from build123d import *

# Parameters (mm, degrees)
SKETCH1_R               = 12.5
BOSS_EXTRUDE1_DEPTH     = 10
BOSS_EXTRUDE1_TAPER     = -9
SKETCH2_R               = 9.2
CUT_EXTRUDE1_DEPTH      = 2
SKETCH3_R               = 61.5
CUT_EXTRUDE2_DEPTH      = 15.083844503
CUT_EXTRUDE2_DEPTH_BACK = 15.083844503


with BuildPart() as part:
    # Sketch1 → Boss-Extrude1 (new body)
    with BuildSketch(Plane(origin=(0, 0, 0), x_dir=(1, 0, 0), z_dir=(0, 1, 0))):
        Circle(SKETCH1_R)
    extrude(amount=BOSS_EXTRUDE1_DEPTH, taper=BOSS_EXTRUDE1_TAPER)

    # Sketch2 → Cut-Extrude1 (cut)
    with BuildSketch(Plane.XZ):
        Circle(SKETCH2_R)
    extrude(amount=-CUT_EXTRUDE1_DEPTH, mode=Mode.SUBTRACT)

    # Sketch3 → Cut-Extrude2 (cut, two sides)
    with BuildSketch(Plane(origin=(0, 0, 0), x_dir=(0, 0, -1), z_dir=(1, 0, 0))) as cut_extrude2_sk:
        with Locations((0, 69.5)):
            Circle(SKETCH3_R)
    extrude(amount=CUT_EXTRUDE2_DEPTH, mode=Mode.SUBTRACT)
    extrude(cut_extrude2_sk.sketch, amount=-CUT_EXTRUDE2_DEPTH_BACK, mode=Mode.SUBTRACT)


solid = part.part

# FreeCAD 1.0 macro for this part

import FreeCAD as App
import Part
import Sketcher
Q = App.Units.Quantity

doc = App.newDocument("Part")
body = doc.addObject("PartDesign::Body", "Body")

sketch1 = body.newObject("Sketcher::SketchObject", "Sketch")
sketch1.AttachmentSupport = (doc.getObject("XZ_Plane"), [""])
sketch1.MapMode = "FlatFace"
sketch1.addGeometry(Part.Circle(App.Vector(0, 0, 0), App.Vector(0, 0, 1), 12), False)
sketch1.addConstraint([
    Sketcher.Constraint("Coincident", 0, 3, -1, 1),
    Sketcher.Constraint("Diameter", 0, Q("25 mm")),
])
pad1 = body.newObject("PartDesign::Pad", "Pad")
pad1.Profile = sketch1
pad1.Length = 10
pad1.Reversed = True
pad1.TaperAngle = 9

sketch2 = body.newObject("Sketcher::SketchObject", "Sketch001")
sketch2.AttachmentSupport = (doc.getObject("XZ_Plane"), [""])
sketch2.MapMode = "FlatFace"
sketch2.addGeometry(Part.Circle(App.Vector(0, 0, 0), App.Vector(0, 0, 1), 9), False)
sketch2.addConstraint([
    Sketcher.Constraint("Coincident", 0, 3, -1, 1),
    Sketcher.Constraint("Diameter", 0, Q("18.4 mm")),
])
pocket1 = body.newObject("PartDesign::Pocket", "Pocket")
pocket1.Profile = sketch2
pocket1.Length = 2

sketch3 = body.newObject("Sketcher::SketchObject", "Sketch002")
sketch3.AttachmentSupport = (doc.getObject("YZ_Plane"), [""])
sketch3.MapMode = "FlatFace"
sketch3.addGeometry(Part.Circle(App.Vector(70, 0, 0), App.Vector(0, 0, 1), 62), False)
sketch3.addConstraint([
    Sketcher.Constraint("PointOnObject", 0, 3, -1),
    Sketcher.Constraint("Diameter", 0, Q("123 mm")),
    Sketcher.Constraint("DistanceX", -1, 1, 0, 3, Q("69.5 mm")),
])
pocket2 = body.newObject("PartDesign::Pocket", "Pocket001")
pocket2.Profile = sketch3
pocket2.Type = "ThroughAll"
pocket2.Midplane = True

doc.recompute()
